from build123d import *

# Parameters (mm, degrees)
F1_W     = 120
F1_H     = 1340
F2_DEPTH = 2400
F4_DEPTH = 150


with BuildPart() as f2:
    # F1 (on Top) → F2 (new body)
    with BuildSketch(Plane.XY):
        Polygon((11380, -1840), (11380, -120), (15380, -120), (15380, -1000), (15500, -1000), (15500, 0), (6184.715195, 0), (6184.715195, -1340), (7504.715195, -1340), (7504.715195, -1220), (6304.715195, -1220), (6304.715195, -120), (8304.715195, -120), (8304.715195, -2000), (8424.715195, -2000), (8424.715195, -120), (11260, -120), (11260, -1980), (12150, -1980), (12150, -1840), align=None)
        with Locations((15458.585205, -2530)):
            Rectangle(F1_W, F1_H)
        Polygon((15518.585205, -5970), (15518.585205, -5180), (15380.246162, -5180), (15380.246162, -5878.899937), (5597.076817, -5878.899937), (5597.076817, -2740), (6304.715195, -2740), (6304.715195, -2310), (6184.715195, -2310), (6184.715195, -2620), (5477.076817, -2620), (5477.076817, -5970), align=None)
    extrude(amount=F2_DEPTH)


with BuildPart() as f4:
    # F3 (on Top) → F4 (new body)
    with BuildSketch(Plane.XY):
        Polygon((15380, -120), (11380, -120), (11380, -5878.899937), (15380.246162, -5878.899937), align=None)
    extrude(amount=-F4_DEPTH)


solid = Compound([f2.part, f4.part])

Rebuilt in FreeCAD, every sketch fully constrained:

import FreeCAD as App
import Part
import Sketcher
from FreeCAD import Vector

doc = App.newDocument("Part")
body = doc.addObject("PartDesign::Body", "Body")
body.AllowCompound = True

sketch1 = body.newObject("Sketcher::SketchObject", "Sketch")
sketch1.AttachmentSupport = (doc.getObject("XY_Plane"), [""])
sketch1.MapMode = "FlatFace"
sketch1.addGeometry(Part.LineSegment(Vector(11380, -1840, 0), Vector(11380, -120, 0)), False)
sketch1.addGeometry(Part.LineSegment(Vector(11380, -120, 0), Vector(15380, -120, 0)), False)
sketch1.addGeometry(Part.LineSegment(Vector(15380, -120, 0), Vector(15380, -1000, 0)), False)
sketch1.addGeometry(Part.LineSegment(Vector(15380, -1000, 0), Vector(15500, -1000, 0)), False)
sketch1.addGeometry(Part.LineSegment(Vector(15500, -1000, 0), Vector(15500, 0, 0)), False)
sketch1.addGeometry(Part.LineSegment(Vector(15500, 0, 0), Vector(6185, 0, 0)), False)
sketch1.addGeometry(Part.LineSegment(Vector(6185, 0, 0), Vector(6185, -1340, 0)), False)
sketch1.addGeometry(Part.LineSegment(Vector(6185, -1340, 0), Vector(7505, -1340, 0)), False)
sketch1.addGeometry(Part.LineSegment(Vector(7505, -1340, 0), Vector(7505, -1220, 0)), False)
sketch1.addGeometry(Part.LineSegment(Vector(7505, -1220, 0), Vector(6305, -1220, 0)), False)
sketch1.addGeometry(Part.LineSegment(Vector(6305, -1220, 0), Vector(6305, -120, 0)), False)
sketch1.addGeometry(Part.LineSegment(Vector(6305, -120, 0), Vector(8305, -120, 0)), False)
sketch1.addGeometry(Part.LineSegment(Vector(8305, -120, 0), Vector(8305, -2000, 0)), False)
sketch1.addGeometry(Part.LineSegment(Vector(8305, -2000, 0), Vector(8425, -2000, 0)), False)
sketch1.addGeometry(Part.LineSegment(Vector(8425, -2000, 0), Vector(8425, -120, 0)), False)
sketch1.addGeometry(Part.LineSegment(Vector(8425, -120, 0), Vector(11260, -120, 0)), False)
sketch1.addGeometry(Part.LineSegment(Vector(11260, -120, 0), Vector(11260, -1980, 0)), False)
sketch1.addGeometry(Part.LineSegment(Vector(11260, -1980, 0), Vector(12150, -1980, 0)), False)
sketch1.addGeometry(Part.LineSegment(Vector(12150, -1980, 0), Vector(12150, -1840, 0)), False)
sketch1.addGeometry(Part.LineSegment(Vector(12150, -1840, 0), Vector(11380, -1840, 0)), False)
sketch1.addGeometry(Part.LineSegment(Vector(15399, -1860, 0), Vector(15399, -3200, 0)), False)
sketch1.addGeometry(Part.LineSegment(Vector(15399, -3200, 0), Vector(15519, -3200, 0)), False)
sketch1.addGeometry(Part.LineSegment(Vector(15519, -3200, 0), Vector(15519, -1860, 0)), False)
sketch1.addGeometry(Part.LineSegment(Vector(15519, -1860, 0), Vector(15399, -1860, 0)), False)
sketch1.addGeometry(Part.LineSegment(Vector(15519, -5970, 0), Vector(15519, -5180, 0)), False)
sketch1.addGeometry(Part.LineSegment(Vector(15519, -5180, 0), Vector(15380, -5180, 0)), False)
sketch1.addGeometry(Part.LineSegment(Vector(15380, -5180, 0), Vector(15380, -5879, 0)), False)
sketch1.addGeometry(Part.LineSegment(Vector(15380, -5879, 0), Vector(5597, -5879, 0)), False)
sketch1.addGeometry(Part.LineSegment(Vector(5597, -5879, 0), Vector(5597, -2740, 0)), False)
sketch1.addGeometry(Part.LineSegment(Vector(5597, -2740, 0), Vector(6305, -2740, 0)), False)
sketch1.addGeometry(Part.LineSegment(Vector(6305, -2740, 0), Vector(6305, -2310, 0)), False)
sketch1.addGeometry(Part.LineSegment(Vector(6305, -2310, 0), Vector(6185, -2310, 0)), False)
sketch1.addGeometry(Part.LineSegment(Vector(6185, -2310, 0), Vector(6185, -2620, 0)), False)
sketch1.addGeometry(Part.LineSegment(Vector(6185, -2620, 0), Vector(5477, -2620, 0)), False)
sketch1.addGeometry(Part.LineSegment(Vector(5477, -2620, 0), Vector(5477, -5970, 0)), False)
sketch1.addGeometry(Part.LineSegment(Vector(5477, -5970, 0), Vector(15519, -5970, 0)), False)
sketch1.addConstraint(Sketcher.Constraint("Coincident", 0, 2, 1, 1))
sketch1.addConstraint(Sketcher.Constraint("Coincident", 1, 2, 2, 1))
sketch1.addConstraint(Sketcher.Constraint("Coincident", 2, 2, 3, 1))
sketch1.addConstraint(Sketcher.Constraint("Coincident", 3, 2, 4, 1))
sketch1.addConstraint(Sketcher.Constraint("Coincident", 4, 2, 5, 1))
sketch1.addConstraint(Sketcher.Constraint("Coincident", 5, 2, 6, 1))
sketch1.addConstraint(Sketcher.Constraint("Coincident", 6, 2, 7, 1))
sketch1.addConstraint(Sketcher.Constraint("Coincident", 7, 2, 8, 1))
sketch1.addConstraint(Sketcher.Constraint("Coincident", 8, 2, 9, 1))
sketch1.addConstraint(Sketcher.Constraint("Coincident", 9, 2, 10, 1))
sketch1.addConstraint(Sketcher.Constraint("Coincident", 10, 2, 11, 1))
sketch1.addConstraint(Sketcher.Constraint("Coincident", 11, 2, 12, 1))
sketch1.addConstraint(Sketcher.Constraint("Coincident", 12, 2, 13, 1))
sketch1.addConstraint(Sketcher.Constraint("Coincident", 13, 2, 14, 1))
sketch1.addConstraint(Sketcher.Constraint("Coincident", 14, 2, 15, 1))
sketch1.addConstraint(Sketcher.Constraint("Coincident", 15, 2, 16, 1))
sketch1.addConstraint(Sketcher.Constraint("Coincident", 16, 2, 17, 1))
sketch1.addConstraint(Sketcher.Constraint("Coincident", 17, 2, 18, 1))
sketch1.addConstraint(Sketcher.Constraint("Coincident", 18, 2, 19, 1))
sketch1.addConstraint(Sketcher.Constraint("Coincident", 19, 2, 0, 1))
sketch1.addConstraint(Sketcher.Constraint("Coincident", 20, 2, 21, 1))
sketch1.addConstraint(Sketcher.Constraint("Coincident", 21, 2, 22, 1))
sketch1.addConstraint(Sketcher.Constraint("Coincident", 22, 2, 23, 1))
sketch1.addConstraint(Sketcher.Constraint("Coincident", 23, 2, 20, 1))
sketch1.addConstraint(Sketcher.Constraint("Coincident", 24, 2, 25, 1))
sketch1.addConstraint(Sketcher.Constraint("Coincident", 25, 2, 26, 1))
sketch1.addConstraint(Sketcher.Constraint("Coincident", 26, 2, 27, 1))
sketch1.addConstraint(Sketcher.Constraint("Coincident", 27, 2, 28, 1))
sketch1.addConstraint(Sketcher.Constraint("Coincident", 28, 2, 29, 1))
sketch1.addConstraint(Sketcher.Constraint("Coincident", 29, 2, 30, 1))
sketch1.addConstraint(Sketcher.Constraint("Coincident", 30, 2, 31, 1))
sketch1.addConstraint(Sketcher.Constraint("Coincident", 31, 2, 32, 1))
sketch1.addConstraint(Sketcher.Constraint("Coincident", 32, 2, 33, 1))
sketch1.addConstraint(Sketcher.Constraint("Coincident", 33, 2, 34, 1))
sketch1.addConstraint(Sketcher.Constraint("Coincident", 34, 2, 35, 1))
sketch1.addConstraint(Sketcher.Constraint("Coincident", 35, 2, 24, 1))
sketch1.addConstraint(Sketcher.Constraint("Vertical", 0))
sketch1.addConstraint(Sketcher.Constraint("Horizontal", 1))
sketch1.addConstraint(Sketcher.Constraint("Vertical", 2))
sketch1.addConstraint(Sketcher.Constraint("Horizontal", 3))
sketch1.addConstraint(Sketcher.Constraint("Vertical", 4))
sketch1.addConstraint(Sketcher.Constraint("Horizontal", 5))
sketch1.addConstraint(Sketcher.Constraint("Vertical", 6))
sketch1.addConstraint(Sketcher.Constraint("Horizontal", 7))
sketch1.addConstraint(Sketcher.Constraint("Vertical", 8))
sketch1.addConstraint(Sketcher.Constraint("Horizontal", 9))
sketch1.addConstraint(Sketcher.Constraint("Vertical", 10))
sketch1.addConstraint(Sketcher.Constraint("Horizontal", 11))
sketch1.addConstraint(Sketcher.Constraint("Vertical", 12))
sketch1.addConstraint(Sketcher.Constraint("Horizontal", 13))
sketch1.addConstraint(Sketcher.Constraint("Vertical", 14))
sketch1.addConstraint(Sketcher.Constraint("Horizontal", 15))
sketch1.addConstraint(Sketcher.Constraint("Vertical", 16))
sketch1.addConstraint(Sketcher.Constraint("Horizontal", 17))
sketch1.addConstraint(Sketcher.Constraint("Vertical", 18))
sketch1.addConstraint(Sketcher.Constraint("Horizontal", 19))
sketch1.addConstraint(Sketcher.Constraint("Vertical", 20))
sketch1.addConstraint(Sketcher.Constraint("Horizontal", 21))
sketch1.addConstraint(Sketcher.Constraint("Vertical", 22))
sketch1.addConstraint(Sketcher.Constraint("Horizontal", 23))
sketch1.addConstraint(Sketcher.Constraint("Vertical", 24))
sketch1.addConstraint(Sketcher.Constraint("Horizontal", 25))
sketch1.addConstraint(Sketcher.Constraint("Vertical", 26))
sketch1.addConstraint(Sketcher.Constraint("Horizontal", 27))
sketch1.addConstraint(Sketcher.Constraint("Vertical", 28))
sketch1.addConstraint(Sketcher.Constraint("Horizontal", 29))
sketch1.addConstraint(Sketcher.Constraint("Vertical", 30))
sketch1.addConstraint(Sketcher.Constraint("Horizontal", 31))
sketch1.addConstraint(Sketcher.Constraint("Vertical", 32))
sketch1.addConstraint(Sketcher.Constraint("Horizontal", 33))
sketch1.addConstraint(Sketcher.Constraint("Vertical", 34))
sketch1.addConstraint(Sketcher.Constraint("Horizontal", 35))
sketch1.addConstraint(Sketcher.Constraint("PointOnObject", 4, 2, -1))
sketch1.addConstraint(Sketcher.Constraint("Horizontal", 1, 2, 10, 2))
sketch1.addConstraint(Sketcher.Constraint("Horizontal", 11, 2, 14, 2))
sketch1.addConstraint(Sketcher.Constraint("Vertical", 22, 2, 24, 2))
sketch1.addConstraint(Sketcher.Constraint("Vertical", 10, 2, 29, 2))
sketch1.addConstraint(Sketcher.Constraint("Vertical", 6, 2, 31, 2))
sketch1.addConstraint(Sketcher.Constraint("Equal", 3, 13))
sketch1.addConstraint(Sketcher.Constraint("Equal", 13, 21))
sketch1.addConstraint(Sketcher.Constraint("Equal", 23, 31))
sketch1.addConstraint(Sketcher.Constraint("Equal", 29, 33))
sketch1.addConstraint(Sketcher.Constraint("Equal", 31, 8))
sketch1.addConstraint(Sketcher.Constraint("Equal", 6, 20))
sketch1.addConstraint(Sketcher.Constraint("DistanceX", 1, 1, 1, 2, 4000.0))
sketch1.addConstraint(Sketcher.Constraint("DistanceX", 3, 1, 3, 2, 120.0))
sketch1.addConstraint(Sketcher.Constraint("DistanceX", 7, 1, 7, 2, 1320.0))
sketch1.addConstraint(Sketcher.Constraint("DistanceX", 11, 1, 11, 2, 2000.0))
sketch1.addConstraint(Sketcher.Constraint("DistanceX", 17, 1, 17, 2, 890.0))
sketch1.addConstraint(Sketcher.Constraint("DistanceX", 19, 2, 19, 1, 770.0))
sketch1.addConstraint(Sketcher.Constraint("DistanceY", 0, 1, 0, 2, 1720.0))
sketch1.addConstraint(Sketcher.Constraint("DistanceY", 2, 2, 2, 1, 880.0))
sketch1.addConstraint(Sketcher.Constraint("DistanceY", 4, 1, 4, 2, 1000.0))
sketch1.addConstraint(Sketcher.Constraint("DistanceY", 6, 2, 6, 1, 1340.0))
sketch1.addConstraint(Sketcher.Constraint("DistanceY", 12, 2, 12, 1, 1880.0))
sketch1.addConstraint(Sketcher.Constraint("DistanceY", 16, 2, 16, 1, 1860.0))
sketch1.addConstraint(Sketcher.Constraint("DistanceY", 24, 1, 24, 2, 790.0))
sketch1.addConstraint(Sketcher.Constraint("DistanceY", 30, 1, 30, 2, 430.0))
sketch1.addConstraint(Sketcher.Constraint("DistanceY", 32, 2, 32, 1, 310.0))
sketch1.addConstraint(Sketcher.Constraint("DistanceY", 34, 2, 34, 1, 3350.0))
sketch1.addConstraint(Sketcher.Constraint("DistanceX", -1, 1, 0, 2, 11380.0))
sketch1.addConstraint(Sketcher.Constraint("DistanceY", 20, 2, -1, 1, 3200.0))
sketch1.addConstraint(Sketcher.Constraint("DistanceY", 24, 2, -1, 1, 5180.0))
sketch1.addConstraint(Sketcher.Constraint("DistanceX", 5, 2, 5, 1, 9315.284805))
sketch1.addConstraint(Sketcher.Constraint("DistanceX", 25, 2, 25, 1, 138.339043))
sketch1.addConstraint(Sketcher.Constraint("DistanceX", 27, 2, 27, 1, 9783.169345))
sketch1.addConstraint(Sketcher.Constraint("DistanceX", 29, 1, 29, 2, 707.638378))
sketch1.addConstraint(Sketcher.Constraint("DistanceY", 26, 2, 26, 1, 698.899937))
pad1 = body.newObject("PartDesign::Pad", "Pad")
pad1.Profile = sketch1
pad1.Length = 2400
body2 = doc.addObject("PartDesign::Body", "Body001")

sketch2 = body2.newObject("Sketcher::SketchObject", "Sketch001")
sketch2.AttachmentSupport = (doc.getObject("XY_Plane001"), [""])
sketch2.MapMode = "FlatFace"
sketch2.addGeometry(Part.LineSegment(Vector(15380, -120, 0), Vector(11380, -120, 0)), False)
sketch2.addGeometry(Part.LineSegment(Vector(11380, -120, 0), Vector(11380, -5879, 0)), False)
sketch2.addGeometry(Part.LineSegment(Vector(11380, -5879, 0), Vector(15380, -5879, 0)), False)
sketch2.addGeometry(Part.LineSegment(Vector(15380, -5879, 0), Vector(15380, -120, 0)), False)
sketch2.addConstraint(Sketcher.Constraint("Coincident", 0, 2, 1, 1))
sketch2.addConstraint(Sketcher.Constraint("Coincident", 1, 2, 2, 1))
sketch2.addConstraint(Sketcher.Constraint("Coincident", 2, 2, 3, 1))
sketch2.addConstraint(Sketcher.Constraint("Coincident", 3, 2, 0, 1))
sketch2.addConstraint(Sketcher.Constraint("Horizontal", 0))
sketch2.addConstraint(Sketcher.Constraint("Vertical", 1))
sketch2.addConstraint(Sketcher.Constraint("Horizontal", 2))
sketch2.addConstraint(Sketcher.Constraint("DistanceX", 0, 2, 0, 1, 4000.0))
sketch2.addConstraint(Sketcher.Constraint("DistanceX", -1, 1, 0, 2, 11380.0))
sketch2.addConstraint(Sketcher.Constraint("DistanceY", 0, 2, -1, 1, 120.0))
sketch2.addConstraint(Sketcher.Constraint("DistanceX", 2, 1, 2, 2, 4000.246162))
sketch2.addConstraint(Sketcher.Constraint("DistanceY", 1, 2, 1, 1, 5758.899937))
pad2 = body2.newObject("PartDesign::Pad", "Pad001")
pad2.Profile = sketch2
pad2.Length = 150
pad2.Reversed = True

doc.recompute()
